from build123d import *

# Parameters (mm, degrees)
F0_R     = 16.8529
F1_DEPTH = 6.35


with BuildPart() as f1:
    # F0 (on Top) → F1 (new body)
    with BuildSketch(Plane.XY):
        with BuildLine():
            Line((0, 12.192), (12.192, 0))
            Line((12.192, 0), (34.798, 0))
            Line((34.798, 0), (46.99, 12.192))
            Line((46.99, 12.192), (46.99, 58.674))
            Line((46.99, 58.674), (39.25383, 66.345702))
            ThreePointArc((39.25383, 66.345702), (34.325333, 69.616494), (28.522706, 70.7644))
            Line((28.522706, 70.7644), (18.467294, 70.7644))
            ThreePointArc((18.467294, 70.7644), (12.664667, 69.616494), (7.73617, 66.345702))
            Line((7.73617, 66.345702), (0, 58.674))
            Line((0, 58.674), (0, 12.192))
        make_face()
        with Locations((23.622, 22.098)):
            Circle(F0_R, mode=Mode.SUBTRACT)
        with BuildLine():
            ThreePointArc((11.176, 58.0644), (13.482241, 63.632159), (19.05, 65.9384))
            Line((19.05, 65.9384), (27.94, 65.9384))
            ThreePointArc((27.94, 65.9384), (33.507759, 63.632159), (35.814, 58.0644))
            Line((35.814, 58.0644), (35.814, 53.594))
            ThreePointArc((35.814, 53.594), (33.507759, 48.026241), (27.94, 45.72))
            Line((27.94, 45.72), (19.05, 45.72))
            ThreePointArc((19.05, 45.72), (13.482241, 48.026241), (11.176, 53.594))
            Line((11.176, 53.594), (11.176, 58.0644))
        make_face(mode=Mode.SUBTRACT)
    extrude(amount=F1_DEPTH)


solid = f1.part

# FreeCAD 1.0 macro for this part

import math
import FreeCAD as App
import Part
import Sketcher

V = App.Vector
Q = App.Units.Quantity

doc = App.newDocument("Part")
body = doc.addObject("PartDesign::Body", "Body")

# Sketch on XY plane
sketch1 = doc.addObject("Sketcher::SketchObject", "Sketch")
body.addObject(sketch1)
sketch1.AttachmentSupport = (doc.XY_Plane, [""])
sketch1.MapMode = "FlatFace"
sketch1.addGeometry([
    Part.LineSegment(V(0, 12.2, 0), V(12.2, 0, 0)),  # 0
    Part.LineSegment(V(12.2, 0, 0), V(34.8, 0, 0)),  # 1
    Part.LineSegment(V(34.8, 0, 0), V(47, 12.2, 0)),  # 2
    Part.LineSegment(V(47, 12.2, 0), V(47, 58.7, 0)),  # 3
    Part.LineSegment(V(47, 58.7, 0), V(39.3, 66.3, 0)),  # 4
    Part.ArcOfCircle(Part.Circle(V(28.5, 55.5, 0), V(0, 0, 1), 15.2), math.radians(45), math.radians(90)),  # 5
    Part.LineSegment(V(28.5, 70.8, 0), V(18.5, 70.8, 0)),  # 6
    Part.ArcOfCircle(Part.Circle(V(18.5, 55.5, 0), V(0, 0, 1), 15.2), math.radians(90), math.radians(135)),  # 7
    Part.LineSegment(V(7.7, 66.3, 0), V(0, 58.7, 0)),  # 8
    Part.LineSegment(V(0, 58.7, 0), V(0, 12.2, 0)),  # 9
    Part.Circle(V(23.6, 22.1, 0), V(0, 0, 1), 16.9),  # 10
    Part.LineSegment(V(11.2, 53.6, 0), V(11.2, 58.1, 0)),  # 11
    Part.ArcOfCircle(Part.Circle(V(19, 58.1, 0), V(0, 0, 1), 7.9), math.radians(90), math.radians(180)),  # 12
    Part.LineSegment(V(19.1, 65.9, 0), V(27.9, 65.9, 0)),  # 13
    Part.ArcOfCircle(Part.Circle(V(27.9, 58.1, 0), V(0, 0, 1), 7.9), math.radians(0), math.radians(90)),  # 14
    Part.LineSegment(V(35.8, 58.1, 0), V(35.8, 53.6, 0)),  # 15
    Part.ArcOfCircle(Part.Circle(V(27.9, 53.6, 0), V(0, 0, 1), 7.9), math.radians(-90), math.radians(0)),  # 16
    Part.LineSegment(V(27.9, 45.7, 0), V(19.1, 45.7, 0)),  # 17
    Part.ArcOfCircle(Part.Circle(V(19, 53.6, 0), V(0, 0, 1), 7.9), math.radians(180), math.radians(270)),  # 18
], False)
sketch1.addConstraint([
    Sketcher.Constraint("Coincident", 0, 2, 1, 1),
    Sketcher.Constraint("Coincident", 1, 2, 2, 1),
    Sketcher.Constraint("Coincident", 2, 2, 3, 1),
    Sketcher.Constraint("Coincident", 3, 2, 4, 1),
    Sketcher.Constraint("Tangent", 4, 2, 5, 1),
    Sketcher.Constraint("Tangent", 5, 2, 6, 1),
    Sketcher.Constraint("Tangent", 6, 2, 7, 1),
    Sketcher.Constraint("Tangent", 7, 2, 8, 1),
    Sketcher.Constraint("Coincident", 8, 2, 9, 1),
    Sketcher.Constraint("Coincident", 9, 2, 0, 1),
    Sketcher.Constraint("Tangent", 11, 2, 12, 2),
    Sketcher.Constraint("Tangent", 12, 1, 13, 1),
    Sketcher.Constraint("Tangent", 13, 2, 14, 2),
    Sketcher.Constraint("Tangent", 14, 1, 15, 1),
    Sketcher.Constraint("Tangent", 15, 2, 16, 2),
    Sketcher.Constraint("Tangent", 16, 1, 17, 1),
    Sketcher.Constraint("Tangent", 17, 2, 18, 2),
    Sketcher.Constraint("Tangent", 18, 1, 11, 1),
    Sketcher.Constraint("Horizontal", 1),
    Sketcher.Constraint("Vertical", 3),
    Sketcher.Constraint("Horizontal", 6),
    Sketcher.Constraint("Vertical", 9),
    Sketcher.Constraint("Vertical", 11),
    Sketcher.Constraint("Horizontal", 13),
    Sketcher.Constraint("Vertical", 15),
    Sketcher.Constraint("Horizontal", 17),
    Sketcher.Constraint("Equal", 5, 7),
    Sketcher.Constraint("Equal", 12, 14),
    Sketcher.Constraint("Equal", 14, 16),
    Sketcher.Constraint("Equal", 16, 18),
    Sketcher.Constraint("PointOnObject", 0, 2, -1),
    Sketcher.Constraint("PointOnObject", 8, 2, -2),
    Sketcher.Constraint("Perpendicular", 0, 2),
    Sketcher.Constraint("Horizontal", 4, 2, 7, 2),
    Sketcher.Constraint("Horizontal", 3, 2, 8, 2),
    Sketcher.Constraint("Horizontal", 2, 2, 9, 2),
    Sketcher.Constraint("Equal", 0, 2),
    Sketcher.Constraint("Radius", 5, Q("0.6000001 in")),
    Sketcher.Constraint("Radius", 12, Q("0.31 in")),
    Sketcher.Constraint("Diameter", 10, Q("1.327 in")),
    Sketcher.Constraint("DistanceX", 1, 1, 1, 2, Q("0.89 in")),
    Sketcher.Constraint("DistanceX", 13, 1, 13, 2, Q("0.35 in")),
    Sketcher.Constraint("DistanceY", 3, 1, 3, 2, Q("1.83 in")),
    Sketcher.Constraint("DistanceX", -1, 1, 14, 3, Q("1.1 in")),
    Sketcher.Constraint("DistanceY", -1, 1, 16, 1, Q("1.8 in")),
    Sketcher.Constraint("DistanceY", 7, 3, 12, 3, Q("0.1000001 in")),
    Sketcher.Constraint("DistanceY", 16, 3, 3, 2, Q("0.2 in")),
    Sketcher.Constraint("DistanceY", 11, 1, 11, 2, Q("0.176 in")),
    Sketcher.Constraint("DistanceX", -1, 1, 10, 3, Q("0.93 in")),
    Sketcher.Constraint("DistanceY", -1, 1, 10, 3, Q("0.87 in")),
    Sketcher.Constraint("DistanceY", -1, 1, 7, 2, Q("66.345702 mm")),
])
pad1 = doc.addObject("PartDesign::Pad", "Pad")
body.addObject(pad1)
pad1.Profile = sketch1
pad1.Length = Q("0.25 in")

doc.recompute()
